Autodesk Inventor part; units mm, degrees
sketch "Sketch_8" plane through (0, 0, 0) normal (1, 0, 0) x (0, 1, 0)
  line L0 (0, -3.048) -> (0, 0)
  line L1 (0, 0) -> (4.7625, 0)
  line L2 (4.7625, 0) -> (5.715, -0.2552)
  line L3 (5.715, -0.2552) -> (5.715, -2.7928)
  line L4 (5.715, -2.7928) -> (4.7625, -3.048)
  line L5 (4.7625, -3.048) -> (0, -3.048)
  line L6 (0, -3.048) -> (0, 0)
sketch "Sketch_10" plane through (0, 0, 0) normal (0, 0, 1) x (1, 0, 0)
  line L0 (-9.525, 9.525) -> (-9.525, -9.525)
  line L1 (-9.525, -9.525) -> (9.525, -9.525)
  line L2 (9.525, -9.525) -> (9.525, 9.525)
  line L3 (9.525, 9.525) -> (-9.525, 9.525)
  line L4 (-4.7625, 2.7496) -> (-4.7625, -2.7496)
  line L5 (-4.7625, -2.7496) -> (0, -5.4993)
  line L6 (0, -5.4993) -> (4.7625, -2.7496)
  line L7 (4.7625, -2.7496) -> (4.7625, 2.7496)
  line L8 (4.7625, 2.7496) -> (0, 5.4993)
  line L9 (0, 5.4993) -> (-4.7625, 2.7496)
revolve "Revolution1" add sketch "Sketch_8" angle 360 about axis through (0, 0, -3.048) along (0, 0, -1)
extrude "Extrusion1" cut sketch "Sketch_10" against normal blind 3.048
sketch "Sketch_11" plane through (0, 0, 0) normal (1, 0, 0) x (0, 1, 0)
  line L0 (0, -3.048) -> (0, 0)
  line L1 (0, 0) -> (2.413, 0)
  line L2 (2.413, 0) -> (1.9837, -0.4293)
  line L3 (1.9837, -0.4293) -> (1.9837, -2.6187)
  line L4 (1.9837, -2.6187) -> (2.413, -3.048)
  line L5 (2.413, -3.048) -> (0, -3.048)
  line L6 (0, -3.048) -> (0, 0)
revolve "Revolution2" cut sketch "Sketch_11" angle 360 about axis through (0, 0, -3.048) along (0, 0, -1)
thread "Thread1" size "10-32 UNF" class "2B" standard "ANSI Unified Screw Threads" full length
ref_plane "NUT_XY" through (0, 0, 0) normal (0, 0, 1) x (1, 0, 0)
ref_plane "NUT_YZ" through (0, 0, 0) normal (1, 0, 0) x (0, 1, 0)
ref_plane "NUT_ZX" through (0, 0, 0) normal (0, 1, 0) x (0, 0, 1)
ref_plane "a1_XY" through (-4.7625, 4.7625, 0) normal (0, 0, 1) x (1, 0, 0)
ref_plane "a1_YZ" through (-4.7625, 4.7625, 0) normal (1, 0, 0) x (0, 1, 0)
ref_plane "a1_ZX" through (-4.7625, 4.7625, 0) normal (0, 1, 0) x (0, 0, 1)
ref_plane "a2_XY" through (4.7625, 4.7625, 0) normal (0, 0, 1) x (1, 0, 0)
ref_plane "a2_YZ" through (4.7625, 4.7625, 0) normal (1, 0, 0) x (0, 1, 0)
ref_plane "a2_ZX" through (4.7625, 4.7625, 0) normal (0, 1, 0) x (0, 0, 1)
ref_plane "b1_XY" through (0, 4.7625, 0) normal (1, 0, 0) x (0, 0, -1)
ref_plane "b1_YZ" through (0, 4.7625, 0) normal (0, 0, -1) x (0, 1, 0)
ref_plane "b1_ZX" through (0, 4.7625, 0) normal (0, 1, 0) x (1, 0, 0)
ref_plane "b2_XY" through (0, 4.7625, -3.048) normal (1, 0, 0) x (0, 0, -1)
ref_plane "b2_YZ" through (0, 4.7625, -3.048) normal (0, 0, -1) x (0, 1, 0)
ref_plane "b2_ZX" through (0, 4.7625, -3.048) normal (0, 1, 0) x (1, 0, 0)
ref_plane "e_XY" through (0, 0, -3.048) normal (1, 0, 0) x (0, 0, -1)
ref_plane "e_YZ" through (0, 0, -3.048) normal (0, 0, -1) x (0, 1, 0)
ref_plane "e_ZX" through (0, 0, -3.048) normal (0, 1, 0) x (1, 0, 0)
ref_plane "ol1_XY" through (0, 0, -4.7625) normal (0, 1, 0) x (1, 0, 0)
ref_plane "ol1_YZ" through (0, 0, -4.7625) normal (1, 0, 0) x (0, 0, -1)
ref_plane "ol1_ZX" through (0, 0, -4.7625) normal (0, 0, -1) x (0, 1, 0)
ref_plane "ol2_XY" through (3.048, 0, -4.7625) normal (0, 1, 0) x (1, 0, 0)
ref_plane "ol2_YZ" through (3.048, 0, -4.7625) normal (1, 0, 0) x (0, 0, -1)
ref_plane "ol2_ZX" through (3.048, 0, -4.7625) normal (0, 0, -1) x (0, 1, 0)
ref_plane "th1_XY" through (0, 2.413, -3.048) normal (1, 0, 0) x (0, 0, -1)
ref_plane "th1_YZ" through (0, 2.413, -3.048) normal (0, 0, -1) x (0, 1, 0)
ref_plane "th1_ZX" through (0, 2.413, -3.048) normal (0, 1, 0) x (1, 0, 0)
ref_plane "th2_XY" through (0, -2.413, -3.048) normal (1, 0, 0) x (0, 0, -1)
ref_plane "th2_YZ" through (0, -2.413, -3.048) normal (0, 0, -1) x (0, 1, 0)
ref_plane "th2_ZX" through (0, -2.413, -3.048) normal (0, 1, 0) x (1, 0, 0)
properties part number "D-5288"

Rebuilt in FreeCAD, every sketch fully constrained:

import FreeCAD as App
import Part
import Sketcher
from FreeCAD import Vector
Q = App.Units.Quantity


def add_polygon(sketch, points):
    """Adds a closed chain of lines whose ends are joined by coincident constraints."""
    first, n = sketch.GeometryCount, len(points)
    for a, b in zip(points, points[1:] + points[:1]):
        sketch.addGeometry(Part.LineSegment(App.Vector(*a, 0), App.Vector(*b, 0)), False)
    for i in range(n):
        sketch.addConstraint(Sketcher.Constraint("Coincident", first + i, 2, first + (i + 1) % n, 1))

doc = App.newDocument("Part")
params = doc.addObject("Spreadsheet::Sheet", "Params")
for row, (alias, value) in enumerate([
    ("sketch1_height", "0.12 in"),
    ("sketch1_width", "0.1875 in"),
    ("revolution_angle", "360 deg"),
    ("sketch2_width", "0.75 in"),
    ("pocket1_length", "0.12 in"),
    ("sketch3_height", "0.12 in"),
    ("sketch3_width", "0.095 in"),
    ("groove_angle", "360 deg"),
], start=1):
    params.set(f"A{row}", alias)
    params.set(f"B{row}", "=" + value)
    params.setAlias(f"B{row}", alias)

body = doc.addObject("PartDesign::Body", "Body")

sketch1 = body.newObject("Sketcher::SketchObject", "Sketch")
sketch1.AttachmentSupport = (doc.getObject("YZ_Plane"), [""])
sketch1.MapMode = "FlatFace"
add_polygon(sketch1, [(0, 0), (0, -3), (4.8, -3), (5.7, -2.8), (5.7, -0.3), (4.8, 0)])
sketch1.addConstraint(Sketcher.Constraint("Vertical", 0))
sketch1.addConstraint(Sketcher.Constraint("Horizontal", 1))
sketch1.addConstraint(Sketcher.Constraint("Vertical", 3))
sketch1.addConstraint(Sketcher.Constraint("Horizontal", 5))
sketch1.addConstraint(Sketcher.Constraint("Coincident", 5, 2, -1, 1))
sketch1.addConstraint(Sketcher.Constraint("Vertical", 1, 2, 4, 2))
sketch1.addConstraint(Sketcher.Constraint("Equal", 2, 4))
sketch1.addConstraint(Sketcher.Constraint("DistanceY", 0, 2, 0, 1, Q("0.12 in")))
sketch1.addConstraint(Sketcher.Constraint("DistanceX", 1, 1, 1, 2, Q("0.1875 in")))
sketch1.addConstraint(Sketcher.Constraint("DistanceY", 3, 1, 3, 2, Q("0.0999 in")))
sketch1.addConstraint(Sketcher.Constraint("DistanceX", -1, 1, 2, 2, Q("0.225 in")))
sketch1.setExpression("Constraints[13]", "Params.sketch1_height")
sketch1.setExpression("Constraints[14]", "Params.sketch1_width")
revolution = body.newObject("PartDesign::Revolution", "Revolution")
revolution.Profile = sketch1
revolution.ReferenceAxis = (sketch1, ["V_Axis"])
revolution.setExpression("Angle", "Params.revolution_angle")

sketch2 = body.newObject("Sketcher::SketchObject", "Sketch001")
sketch2.AttachmentSupport = (doc.getObject("XY_Plane"), [""])
sketch2.MapMode = "FlatFace"
add_polygon(sketch2, [(10, 10), (-10, 10), (-10, -10), (10, -10)])
add_polygon(sketch2, [(-5, -3), (-5, 3), (0, 5), (5, 3), (5, -3), (0, -5)])
sketch2.addConstraint(Sketcher.Constraint("Horizontal", 0))
sketch2.addConstraint(Sketcher.Constraint("Vertical", 1))
sketch2.addConstraint(Sketcher.Constraint("Horizontal", 2))
sketch2.addConstraint(Sketcher.Constraint("Vertical", 3))
sketch2.addConstraint(Sketcher.Constraint("Vertical", 4))
sketch2.addConstraint(Sketcher.Constraint("Vertical", 7))
sketch2.addConstraint(Sketcher.Constraint("Symmetric", 0, 2, 2, 2, -1, 1))
sketch2.addConstraint(Sketcher.Constraint("Symmetric", 4, 2, 7, 2, -1, 1))
sketch2.addConstraint(Sketcher.Constraint("Symmetric", 5, 2, 8, 2, -1, 1))
sketch2.addConstraint(Sketcher.Constraint("PointOnObject", 5, 2, -2))
sketch2.addConstraint(Sketcher.Constraint("Parallel", 6, 9))
sketch2.addConstraint(Sketcher.Constraint("Horizontal", 4, 2, 6, 2))
sketch2.addConstraint(Sketcher.Constraint("Equal", 2, 1))
sketch2.addConstraint(Sketcher.Constraint("Angle", 5, Q("30.0006 deg")))
sketch2.addConstraint(Sketcher.Constraint("DistanceX", 0, 2, 0, 1, Q("0.75 in")))
sketch2.addConstraint(Sketcher.Constraint("DistanceY", 4, 1, 4, 2, Q("0.2165 in")))
sketch2.addConstraint(Sketcher.Constraint("DistanceX", 4, 2, -1, 1, Q("0.1875 in")))
sketch2.setExpression("Constraints[24]", "Params.sketch2_width")
pocket1 = body.newObject("PartDesign::Pocket", "Pocket")
pocket1.Profile = sketch2
pocket1.setExpression("Length", "Params.pocket1_length")

sketch3 = body.newObject("Sketcher::SketchObject", "Sketch002")
sketch3.AttachmentSupport = (doc.getObject("YZ_Plane"), [""])
sketch3.MapMode = "FlatFace"
add_polygon(sketch3, [(0, 0), (0, -3), (2.4, -3), (2, -2.6), (2, -0.4), (2.4, 0)])
sketch3.addConstraint(Sketcher.Constraint("Vertical", 0))
sketch3.addConstraint(Sketcher.Constraint("Horizontal", 1))
sketch3.addConstraint(Sketcher.Constraint("Vertical", 3))
sketch3.addConstraint(Sketcher.Constraint("Horizontal", 5))
sketch3.addConstraint(Sketcher.Constraint("Coincident", 5, 2, -1, 1))
sketch3.addConstraint(Sketcher.Constraint("Perpendicular", 2, 4))
sketch3.addConstraint(Sketcher.Constraint("Vertical", 1, 2, 4, 2))
sketch3.addConstraint(Sketcher.Constraint("Equal", 2, 4))
sketch3.addConstraint(Sketcher.Constraint("DistanceY", 0, 2, 0, 1, Q("0.12 in")))
sketch3.addConstraint(Sketcher.Constraint("DistanceX", 1, 1, 1, 2, Q("0.095 in")))
sketch3.addConstraint(Sketcher.Constraint("DistanceY", 3, 1, 3, 2, Q("0.0862 in")))
sketch3.setExpression("Constraints[14]", "Params.sketch3_height")
sketch3.setExpression("Constraints[15]", "Params.sketch3_width")
groove = body.newObject("PartDesign::Groove", "Groove")
groove.Profile = sketch3
groove.ReferenceAxis = (sketch3, ["V_Axis"])
groove.setExpression("Angle", "Params.groove_angle")

doc.recompute()
